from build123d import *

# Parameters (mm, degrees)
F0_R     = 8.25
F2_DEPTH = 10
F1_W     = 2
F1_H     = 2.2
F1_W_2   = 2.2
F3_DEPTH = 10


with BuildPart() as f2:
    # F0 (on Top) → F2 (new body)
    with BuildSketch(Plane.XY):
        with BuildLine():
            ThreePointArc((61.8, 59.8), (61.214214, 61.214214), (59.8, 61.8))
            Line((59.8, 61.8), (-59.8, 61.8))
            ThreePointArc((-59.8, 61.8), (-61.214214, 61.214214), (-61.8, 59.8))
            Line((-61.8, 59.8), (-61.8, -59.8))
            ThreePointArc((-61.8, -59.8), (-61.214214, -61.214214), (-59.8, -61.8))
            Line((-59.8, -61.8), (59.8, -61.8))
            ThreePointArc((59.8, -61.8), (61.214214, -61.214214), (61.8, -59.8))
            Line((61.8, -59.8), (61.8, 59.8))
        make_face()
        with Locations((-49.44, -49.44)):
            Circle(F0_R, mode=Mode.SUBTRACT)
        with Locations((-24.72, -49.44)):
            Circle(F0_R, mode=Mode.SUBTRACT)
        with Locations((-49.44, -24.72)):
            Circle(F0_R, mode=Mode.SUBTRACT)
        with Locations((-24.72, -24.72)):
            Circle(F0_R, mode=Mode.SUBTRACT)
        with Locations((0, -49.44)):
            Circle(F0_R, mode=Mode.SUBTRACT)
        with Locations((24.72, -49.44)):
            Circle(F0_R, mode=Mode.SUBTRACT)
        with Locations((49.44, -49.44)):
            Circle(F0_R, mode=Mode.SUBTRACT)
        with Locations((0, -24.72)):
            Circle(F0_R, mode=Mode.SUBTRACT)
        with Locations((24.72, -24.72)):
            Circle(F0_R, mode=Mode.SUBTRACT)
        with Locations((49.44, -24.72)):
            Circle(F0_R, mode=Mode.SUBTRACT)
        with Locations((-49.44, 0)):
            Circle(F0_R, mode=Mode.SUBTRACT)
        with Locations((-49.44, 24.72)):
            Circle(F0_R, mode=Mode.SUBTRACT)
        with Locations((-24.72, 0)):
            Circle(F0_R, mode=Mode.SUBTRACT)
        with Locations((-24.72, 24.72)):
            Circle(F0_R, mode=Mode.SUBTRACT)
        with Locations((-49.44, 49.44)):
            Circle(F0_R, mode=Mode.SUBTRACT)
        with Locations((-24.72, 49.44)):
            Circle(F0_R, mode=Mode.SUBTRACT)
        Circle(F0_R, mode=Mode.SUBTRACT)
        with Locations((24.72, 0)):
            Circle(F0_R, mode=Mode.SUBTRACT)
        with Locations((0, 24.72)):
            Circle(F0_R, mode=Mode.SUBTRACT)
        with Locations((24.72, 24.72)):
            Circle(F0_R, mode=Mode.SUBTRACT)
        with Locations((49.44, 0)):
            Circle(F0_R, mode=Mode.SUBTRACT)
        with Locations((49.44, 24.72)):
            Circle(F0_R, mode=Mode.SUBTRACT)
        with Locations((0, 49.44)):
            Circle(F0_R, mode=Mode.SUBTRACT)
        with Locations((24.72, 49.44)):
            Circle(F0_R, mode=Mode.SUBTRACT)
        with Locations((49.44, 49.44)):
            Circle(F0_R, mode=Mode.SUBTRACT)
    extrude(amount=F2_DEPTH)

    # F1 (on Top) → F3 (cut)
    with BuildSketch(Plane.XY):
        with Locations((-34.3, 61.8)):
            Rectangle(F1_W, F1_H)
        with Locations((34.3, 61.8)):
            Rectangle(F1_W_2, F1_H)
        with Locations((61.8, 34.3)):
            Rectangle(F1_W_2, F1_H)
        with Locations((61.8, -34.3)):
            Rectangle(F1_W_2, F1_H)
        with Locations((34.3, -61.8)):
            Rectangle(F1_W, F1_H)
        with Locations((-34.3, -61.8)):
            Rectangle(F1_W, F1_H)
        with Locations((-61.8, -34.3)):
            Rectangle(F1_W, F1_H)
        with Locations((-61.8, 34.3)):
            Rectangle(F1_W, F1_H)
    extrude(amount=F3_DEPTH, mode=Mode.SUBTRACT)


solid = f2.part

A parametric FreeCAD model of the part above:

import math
import FreeCAD as App
import Part
import Sketcher
from FreeCAD import Vector

doc = App.newDocument("Part")
params = doc.addObject("Spreadsheet::Sheet", "Params")
for row, (alias, value) in enumerate([
    ("sketch1_radius", "1.999999 mm"),
    ("sketch1_diameter", "16.5 mm"),
    ("sketch1_width", "119.6 mm"),
    ("pad1_length", "10 mm"),
    ("sketch2_width", "2 mm"),
    ("sketch2_width2", "2.2 mm"),
    ("pocket1_length", "10 mm"),
], start=1):
    params.set(f"A{row}", alias)
    params.set(f"B{row}", "=" + value)
    params.setAlias(f"B{row}", alias)

body = doc.addObject("PartDesign::Body", "Body")

# Sketch on XY plane
sketch1 = body.newObject("Sketcher::SketchObject", "Sketch")
sketch1.AttachmentSupport = (doc.getObject("XY_Plane"), [""])
sketch1.MapMode = "FlatFace"
sketch1.addGeometry([
    Part.ArcOfCircle(Part.Circle(Vector(59.800001, 59.800001, 0), Vector(0, 0, 1), 1.999999), math.radians(-0.000043), math.radians(90.000043)),  # 0
    Part.LineSegment(Vector(59.8, 61.8, 0), Vector(-59.8, 61.8, 0)),  # 1
    Part.ArcOfCircle(Part.Circle(Vector(-59.800001, 59.800001, 0), Vector(0, 0, 1), 1.999999), math.radians(89.999957), math.radians(180.000043)),  # 2
    Part.LineSegment(Vector(-61.8, 59.8, 0), Vector(-61.8, -59.8, 0)),  # 3
    Part.ArcOfCircle(Part.Circle(Vector(-59.800001, -59.800001, 0), Vector(0, 0, 1), 1.999999), math.radians(179.999957), math.radians(270.000043)),  # 4
    Part.LineSegment(Vector(-59.8, -61.8, 0), Vector(59.8, -61.8, 0)),  # 5
    Part.ArcOfCircle(Part.Circle(Vector(59.800001, -59.800001, 0), Vector(0, 0, 1), 1.999999), math.radians(-90.000043), math.radians(0.000043)),  # 6
    Part.LineSegment(Vector(61.8, -59.8, 0), Vector(61.8, 59.8, 0)),  # 7
    Part.Circle(Vector(-49.44, -49.44, 0), Vector(0, 0, 1), 8.25),  # 8
    Part.Circle(Vector(-24.72, -49.44, 0), Vector(0, 0, 1), 8.25),  # 9
    Part.Circle(Vector(0, -49.44, 0), Vector(0, 0, 1), 8.25),  # 10
    Part.Circle(Vector(-49.44, -24.72, 0), Vector(0, 0, 1), 8.25),  # 11
    Part.Circle(Vector(-49.44, 0, 0), Vector(0, 0, 1), 8.25),  # 12
    Part.Circle(Vector(-24.72, -24.72, 0), Vector(0, 0, 1), 8.25),  # 13
    Part.Circle(Vector(0, -24.72, 0), Vector(0, 0, 1), 8.25),  # 14
    Part.Circle(Vector(-24.72, 0, 0), Vector(0, 0, 1), 8.25),  # 15
    Part.Circle(Vector(0, 0, 0), Vector(0, 0, 1), 8.25),  # 16
    Part.Circle(Vector(24.72, -49.44, 0), Vector(0, 0, 1), 8.25),  # 17
    Part.Circle(Vector(49.44, -49.44, 0), Vector(0, 0, 1), 8.25),  # 18
    Part.Circle(Vector(24.72, -24.72, 0), Vector(0, 0, 1), 8.25),  # 19
    Part.Circle(Vector(24.72, 0, 0), Vector(0, 0, 1), 8.25),  # 20
    Part.Circle(Vector(49.44, -24.72, 0), Vector(0, 0, 1), 8.25),  # 21
    Part.Circle(Vector(49.44, 0, 0), Vector(0, 0, 1), 8.25),  # 22
    Part.Circle(Vector(-49.44, 24.72, 0), Vector(0, 0, 1), 8.25),  # 23
    Part.Circle(Vector(-24.72, 24.72, 0), Vector(0, 0, 1), 8.25),  # 24
    Part.Circle(Vector(0, 24.72, 0), Vector(0, 0, 1), 8.25),  # 25
    Part.Circle(Vector(-49.44, 49.44, 0), Vector(0, 0, 1), 8.25),  # 26
    Part.Circle(Vector(-24.72, 49.44, 0), Vector(0, 0, 1), 8.25),  # 27
    Part.Circle(Vector(0, 49.44, 0), Vector(0, 0, 1), 8.25),  # 28
    Part.Circle(Vector(24.72, 24.72, 0), Vector(0, 0, 1), 8.25),  # 29
    Part.Circle(Vector(49.44, 24.72, 0), Vector(0, 0, 1), 8.25),  # 30
    Part.Circle(Vector(24.72, 49.44, 0), Vector(0, 0, 1), 8.25),  # 31
    Part.Circle(Vector(49.44, 49.44, 0), Vector(0, 0, 1), 8.25),  # 32
], False)
sketch1.addConstraint([
    Sketcher.Constraint("Tangent", 0, 2, 1, 1),
    Sketcher.Constraint("Tangent", 1, 2, 2, 1),
    Sketcher.Constraint("Tangent", 2, 2, 3, 1),
    Sketcher.Constraint("Tangent", 3, 2, 4, 1),
    Sketcher.Constraint("Tangent", 4, 2, 5, 1),
    Sketcher.Constraint("Tangent", 5, 2, 6, 1),
    Sketcher.Constraint("Tangent", 6, 2, 7, 1),
    Sketcher.Constraint("Tangent", 7, 2, 0, 1),
    Sketcher.Constraint("Horizontal", 1),
    Sketcher.Constraint("Vertical", 3),
    Sketcher.Constraint("Horizontal", 5),
    Sketcher.Constraint("Vertical", 7),
    Sketcher.Constraint("Coincident", 16, 3, -1, 1),
    Sketcher.Constraint("Equal", 0, 2),
    Sketcher.Constraint("Equal", 2, 4),
    Sketcher.Constraint("Equal", 4, 6),
    Sketcher.Constraint("Equal", 8, 9),
    Sketcher.Constraint("Equal", 9, 10),
    Sketcher.Constraint("Equal", 10, 11),
    Sketcher.Constraint("Equal", 11, 12),
    Sketcher.Constraint("Equal", 12, 13),
    Sketcher.Constraint("Equal", 13, 14),
    Sketcher.Constraint("Equal", 14, 15),
    Sketcher.Constraint("Equal", 15, 16),
    Sketcher.Constraint("Equal", 16, 17),
    Sketcher.Constraint("Equal", 17, 18),
    Sketcher.Constraint("Equal", 18, 19),
    Sketcher.Constraint("Equal", 19, 20),
    Sketcher.Constraint("Equal", 20, 21),
    Sketcher.Constraint("Equal", 21, 22),
    Sketcher.Constraint("Equal", 22, 23),
    Sketcher.Constraint("Equal", 23, 24),
    Sketcher.Constraint("Equal", 24, 25),
    Sketcher.Constraint("Equal", 25, 26),
    Sketcher.Constraint("Equal", 26, 27),
    Sketcher.Constraint("Equal", 27, 28),
    Sketcher.Constraint("Equal", 28, 29),
    Sketcher.Constraint("Equal", 29, 30),
    Sketcher.Constraint("Equal", 30, 31),
    Sketcher.Constraint("Equal", 31, 32),
    Sketcher.Constraint("Symmetric", 0, 3, 4, 3, -1, 1),
    Sketcher.Constraint("Symmetric", 15, 3, 20, 3, -1, 1),
    Sketcher.Constraint("Symmetric", 12, 3, 22, 3, -1, 1),
    Sketcher.Constraint("Symmetric", 21, 3, 23, 3, -1, 1),
    Sketcher.Constraint("Symmetric", 19, 3, 24, 3, -1, 1),
    Sketcher.Constraint("Symmetric", 14, 3, 25, 3, -1, 1),
    Sketcher.Constraint("Symmetric", 18, 3, 26, 3, -1, 1),
    Sketcher.Constraint("Symmetric", 17, 3, 27, 3, -1, 1),
    Sketcher.Constraint("Symmetric", 10, 3, 28, 3, -1, 1),
    Sketcher.Constraint("Symmetric", 13, 3, 29, 3, -1, 1),
    Sketcher.Constraint("Symmetric", 11, 3, 30, 3, -1, 1),
    Sketcher.Constraint("Symmetric", 9, 3, 31, 3, -1, 1),
    Sketcher.Constraint("Symmetric", 8, 3, 32, 3, -1, 1),
    Sketcher.Constraint("Symmetric", 9, 3, 17, 3, -2),
    Sketcher.Constraint("Symmetric", 8, 3, 18, 3, -2),
    Sketcher.Constraint("Symmetric", 13, 3, 19, 3, -2),
    Sketcher.Constraint("Symmetric", 11, 3, 21, 3, -2),
    Sketcher.Constraint("PointOnObject", 10, 3, -2),
    Sketcher.Constraint("PointOnObject", 12, 3, -1),
    Sketcher.Constraint("PointOnObject", 14, 3, -2),
    Sketcher.Constraint("PointOnObject", 15, 3, -1),
    Sketcher.Constraint("Horizontal", 8, 3, 9, 3),
    Sketcher.Constraint("Horizontal", 9, 3, 10, 3),
    Sketcher.Constraint("Horizontal", 11, 3, 13, 3),
    Sketcher.Constraint("Horizontal", 13, 3, 14, 3),
    Sketcher.Constraint("Vertical", 8, 3, 11, 3),
    Sketcher.Constraint("Vertical", 11, 3, 12, 3),
    Sketcher.Constraint("Vertical", 9, 3, 13, 3),
    Sketcher.Constraint("Vertical", 13, 3, 15, 3),
    Sketcher.Constraint("Equal", 5, 3),
    Sketcher.Constraint("Radius", 0, 1.999999),
    Sketcher.Constraint("Diameter", 8, 16.5),
    Sketcher.Constraint("DistanceX", 1, 2, 1, 1, 119.6),
    Sketcher.Constraint("DistanceX", 8, 3, -1, 1, 49.44),
    Sketcher.Constraint("DistanceY", 8, 3, -1, 1, 49.44),
    Sketcher.Constraint("DistanceX", 9, 3, -1, 1, 24.72),
    Sketcher.Constraint("DistanceY", 11, 3, -1, 1, 24.72),
])
sketch1.setExpression("Constraints[70]", "Params.sketch1_radius")
sketch1.setExpression("Constraints[71]", "Params.sketch1_diameter")
sketch1.setExpression("Constraints[72]", "Params.sketch1_width")
pad1 = body.newObject("PartDesign::Pad", "Pad")
pad1.Profile = sketch1
pad1.setExpression("Length", "Params.pad1_length")

# Sketch on XY plane
sketch2 = body.newObject("Sketcher::SketchObject", "Sketch001")
sketch2.AttachmentSupport = (doc.getObject("XY_Plane"), [""])
sketch2.MapMode = "FlatFace"
sketch2.addGeometry([
    Part.LineSegment(Vector(-35.3, 62.9, 0), Vector(-35.3, 60.7, 0)),  # 0
    Part.LineSegment(Vector(-35.3, 60.7, 0), Vector(-33.3, 60.7, 0)),  # 1
    Part.LineSegment(Vector(-33.3, 60.7, 0), Vector(-33.3, 62.9, 0)),  # 2
    Part.LineSegment(Vector(-33.3, 62.9, 0), Vector(-35.3, 62.9, 0)),  # 3
    Part.LineSegment(Vector(33.2, 62.9, 0), Vector(33.2, 60.7, 0)),  # 4
    Part.LineSegment(Vector(33.2, 60.7, 0), Vector(35.4, 60.7, 0)),  # 5
    Part.LineSegment(Vector(35.4, 60.7, 0), Vector(35.4, 62.9, 0)),  # 6
    Part.LineSegment(Vector(35.4, 62.9, 0), Vector(33.2, 62.9, 0)),  # 7
    Part.LineSegment(Vector(60.7, 35.4, 0), Vector(60.7, 33.2, 0)),  # 8
    Part.LineSegment(Vector(60.7, 33.2, 0), Vector(62.9, 33.2, 0)),  # 9
    Part.LineSegment(Vector(62.9, 33.2, 0), Vector(62.9, 35.4, 0)),  # 10
    Part.LineSegment(Vector(62.9, 35.4, 0), Vector(60.7, 35.4, 0)),  # 11
    Part.LineSegment(Vector(60.7, -33.2, 0), Vector(60.7, -35.4, 0)),  # 12
    Part.LineSegment(Vector(60.7, -35.4, 0), Vector(62.9, -35.4, 0)),  # 13
    Part.LineSegment(Vector(62.9, -35.4, 0), Vector(62.9, -33.2, 0)),  # 14
    Part.LineSegment(Vector(62.9, -33.2, 0), Vector(60.7, -33.2, 0)),  # 15
    Part.LineSegment(Vector(33.3, -60.7, 0), Vector(33.3, -62.9, 0)),  # 16
    Part.LineSegment(Vector(33.3, -62.9, 0), Vector(35.3, -62.9, 0)),  # 17
    Part.LineSegment(Vector(35.3, -62.9, 0), Vector(35.3, -60.7, 0)),  # 18
    Part.LineSegment(Vector(35.3, -60.7, 0), Vector(33.3, -60.7, 0)),  # 19
    Part.LineSegment(Vector(-35.3, -60.7, 0), Vector(-35.3, -62.9, 0)),  # 20
    Part.LineSegment(Vector(-35.3, -62.9, 0), Vector(-33.3, -62.9, 0)),  # 21
    Part.LineSegment(Vector(-33.3, -62.9, 0), Vector(-33.3, -60.7, 0)),  # 22
    Part.LineSegment(Vector(-33.3, -60.7, 0), Vector(-35.3, -60.7, 0)),  # 23
    Part.LineSegment(Vector(-62.8, -33.2, 0), Vector(-62.8, -35.4, 0)),  # 24
    Part.LineSegment(Vector(-62.8, -35.4, 0), Vector(-60.8, -35.4, 0)),  # 25
    Part.LineSegment(Vector(-60.8, -35.4, 0), Vector(-60.8, -33.2, 0)),  # 26
    Part.LineSegment(Vector(-60.8, -33.2, 0), Vector(-62.8, -33.2, 0)),  # 27
    Part.LineSegment(Vector(-62.8, 35.4, 0), Vector(-62.8, 33.2, 0)),  # 28
    Part.LineSegment(Vector(-62.8, 33.2, 0), Vector(-60.8, 33.2, 0)),  # 29
    Part.LineSegment(Vector(-60.8, 33.2, 0), Vector(-60.8, 35.4, 0)),  # 30
    Part.LineSegment(Vector(-60.8, 35.4, 0), Vector(-62.8, 35.4, 0)),  # 31
], False)
sketch2.addConstraint([
    Sketcher.Constraint("Coincident", 0, 2, 1, 1),
    Sketcher.Constraint("Coincident", 1, 2, 2, 1),
    Sketcher.Constraint("Coincident", 2, 2, 3, 1),
    Sketcher.Constraint("Coincident", 3, 2, 0, 1),
    Sketcher.Constraint("Coincident", 4, 2, 5, 1),
    Sketcher.Constraint("Coincident", 5, 2, 6, 1),
    Sketcher.Constraint("Coincident", 6, 2, 7, 1),
    Sketcher.Constraint("Coincident", 7, 2, 4, 1),
    Sketcher.Constraint("Coincident", 8, 2, 9, 1),
    Sketcher.Constraint("Coincident", 9, 2, 10, 1),
    Sketcher.Constraint("Coincident", 10, 2, 11, 1),
    Sketcher.Constraint("Coincident", 11, 2, 8, 1),
    Sketcher.Constraint("Coincident", 12, 2, 13, 1),
    Sketcher.Constraint("Coincident", 13, 2, 14, 1),
    Sketcher.Constraint("Coincident", 14, 2, 15, 1),
    Sketcher.Constraint("Coincident", 15, 2, 12, 1),
    Sketcher.Constraint("Coincident", 16, 2, 17, 1),
    Sketcher.Constraint("Coincident", 17, 2, 18, 1),
    Sketcher.Constraint("Coincident", 18, 2, 19, 1),
    Sketcher.Constraint("Coincident", 19, 2, 16, 1),
    Sketcher.Constraint("Coincident", 20, 2, 21, 1),
    Sketcher.Constraint("Coincident", 21, 2, 22, 1),
    Sketcher.Constraint("Coincident", 22, 2, 23, 1),
    Sketcher.Constraint("Coincident", 23, 2, 20, 1),
    Sketcher.Constraint("Coincident", 24, 2, 25, 1),
    Sketcher.Constraint("Coincident", 25, 2, 26, 1),
    Sketcher.Constraint("Coincident", 26, 2, 27, 1),
    Sketcher.Constraint("Coincident", 27, 2, 24, 1),
    Sketcher.Constraint("Coincident", 28, 2, 29, 1),
    Sketcher.Constraint("Coincident", 29, 2, 30, 1),
    Sketcher.Constraint("Coincident", 30, 2, 31, 1),
    Sketcher.Constraint("Coincident", 31, 2, 28, 1),
    Sketcher.Constraint("Vertical", 0),
    Sketcher.Constraint("Horizontal", 1),
    Sketcher.Constraint("Vertical", 2),
    Sketcher.Constraint("Horizontal", 3),
    Sketcher.Constraint("Vertical", 4),
    Sketcher.Constraint("Horizontal", 5),
    Sketcher.Constraint("Vertical", 6),
    Sketcher.Constraint("Horizontal", 7),
    Sketcher.Constraint("Vertical", 8),
    Sketcher.Constraint("Horizontal", 9),
    Sketcher.Constraint("Vertical", 10),
    Sketcher.Constraint("Horizontal", 11),
    Sketcher.Constraint("Vertical", 12),
    Sketcher.Constraint("Horizontal", 13),
    Sketcher.Constraint("Vertical", 14),
    Sketcher.Constraint("Horizontal", 15),
    Sketcher.Constraint("Vertical", 16),
    Sketcher.Constraint("Horizontal", 17),
    Sketcher.Constraint("Vertical", 18),
    Sketcher.Constraint("Horizontal", 19),
    Sketcher.Constraint("Vertical", 20),
    Sketcher.Constraint("Horizontal", 21),
    Sketcher.Constraint("Vertical", 22),
    Sketcher.Constraint("Horizontal", 23),
    Sketcher.Constraint("Vertical", 24),
    Sketcher.Constraint("Horizontal", 25),
    Sketcher.Constraint("Vertical", 26),
    Sketcher.Constraint("Horizontal", 27),
    Sketcher.Constraint("Vertical", 28),
    Sketcher.Constraint("Horizontal", 29),
    Sketcher.Constraint("Vertical", 30),
    Sketcher.Constraint("Horizontal", 31),
    Sketcher.Constraint("Symmetric", 2, 2, 16, 2, -1, 1),
    Sketcher.Constraint("Symmetric", 0, 2, 18, 2, -1, 1),
    Sketcher.Constraint("Symmetric", 17, 2, 20, 2, -2),
    Sketcher.Constraint("Symmetric", 19, 2, 22, 2, -2),
    Sketcher.Constraint("Symmetric", 11, 2, 12, 2, -1),
    Sketcher.Constraint("Symmetric", 9, 2, 14, 2, -1),
    Sketcher.Constraint("Symmetric", 27, 2, 28, 2, -1),
    Sketcher.Constraint("Symmetric", 25, 2, 30, 2, -1),
    Sketcher.Constraint("Horizontal", 1, 2, 4, 2),
    Sketcher.Constraint("Horizontal", 3, 2, 6, 2),
    Sketcher.Constraint("Horizontal", 13, 2, 24, 2),
    Sketcher.Constraint("Horizontal", 15, 2, 26, 2),
    Sketcher.Constraint("Equal", 7, 9),
    Sketcher.Constraint("Equal", 23, 25),
    Sketcher.Constraint("Equal", 15, 0),
    Sketcher.Constraint("Equal", 6, 8),
    Sketcher.Constraint("DistanceX", 1, 1, 1, 2, 2.0),
    Sketcher.Constraint("DistanceX", 5, 1, 5, 2, 2.2),
    Sketcher.Constraint("DistanceX", 1, 2, 8, 2, 94.0),
    Sketcher.Constraint("DistanceX", 0, 2, -1, 1, 35.3),
    Sketcher.Constraint("DistanceY", -1, 1, 0, 2, 60.7),
    Sketcher.Constraint("DistanceX", -1, 1, 4, 2, 33.2),
    Sketcher.Constraint("DistanceY", -1, 1, 8, 2, 33.2),
    Sketcher.Constraint("DistanceX", 24, 2, -1, 1, 62.8),
])
sketch2.setExpression("Constraints[80]", "Params.sketch2_width")
sketch2.setExpression("Constraints[81]", "Params.sketch2_width2")
pocket1 = body.newObject("PartDesign::Pocket", "Pocket")
pocket1.Profile = sketch2
pocket1.setExpression("Length", "Params.pocket1_length")
pocket1.Reversed = True

doc.recompute()
